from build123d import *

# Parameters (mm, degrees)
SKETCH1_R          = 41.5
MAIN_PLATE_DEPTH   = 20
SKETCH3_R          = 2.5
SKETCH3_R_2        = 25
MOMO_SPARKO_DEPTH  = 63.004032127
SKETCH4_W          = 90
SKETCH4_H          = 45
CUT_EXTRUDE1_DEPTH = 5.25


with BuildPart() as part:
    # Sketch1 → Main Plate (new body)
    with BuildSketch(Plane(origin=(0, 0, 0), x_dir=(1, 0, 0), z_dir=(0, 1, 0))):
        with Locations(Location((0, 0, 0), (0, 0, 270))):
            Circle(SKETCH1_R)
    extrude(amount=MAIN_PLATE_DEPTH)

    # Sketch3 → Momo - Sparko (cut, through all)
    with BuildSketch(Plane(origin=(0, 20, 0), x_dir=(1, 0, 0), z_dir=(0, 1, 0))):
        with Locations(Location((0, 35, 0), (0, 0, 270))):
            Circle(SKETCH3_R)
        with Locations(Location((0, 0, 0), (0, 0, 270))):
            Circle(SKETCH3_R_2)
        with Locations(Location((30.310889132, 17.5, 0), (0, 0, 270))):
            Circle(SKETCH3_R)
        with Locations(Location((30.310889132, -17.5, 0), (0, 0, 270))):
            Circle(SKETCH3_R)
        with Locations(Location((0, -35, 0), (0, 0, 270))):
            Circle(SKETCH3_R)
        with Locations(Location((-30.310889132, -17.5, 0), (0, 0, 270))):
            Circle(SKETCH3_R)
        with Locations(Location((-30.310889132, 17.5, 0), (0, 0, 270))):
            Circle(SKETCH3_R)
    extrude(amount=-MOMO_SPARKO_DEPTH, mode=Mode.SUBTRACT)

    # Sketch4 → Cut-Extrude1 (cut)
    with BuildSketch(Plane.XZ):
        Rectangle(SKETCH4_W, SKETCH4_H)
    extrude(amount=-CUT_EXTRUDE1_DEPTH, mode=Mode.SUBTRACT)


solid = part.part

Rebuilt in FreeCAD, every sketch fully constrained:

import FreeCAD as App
import Part
import Sketcher


def add_polygon(sketch, points):
    """Adds a closed chain of lines whose ends are joined by coincident constraints."""
    first, n = sketch.GeometryCount, len(points)
    for a, b in zip(points, points[1:] + points[:1]):
        sketch.addGeometry(Part.LineSegment(App.Vector(*a, 0), App.Vector(*b, 0)), False)
    for i in range(n):
        sketch.addConstraint(Sketcher.Constraint("Coincident", first + i, 2, first + (i + 1) % n, 1))

doc = App.newDocument("Part")
body = doc.addObject("PartDesign::Body", "Body")

sketch1 = body.newObject("Sketcher::SketchObject", "Sketch")
sketch1.AttachmentSupport = (doc.getObject("XZ_Plane"), [""])
sketch1.MapMode = "FlatFace"
sketch1.addGeometry(Part.Circle(App.Vector(0, 0, 0), App.Vector(0, 0, 1), 42), False)
sketch1.addConstraint([
    Sketcher.Constraint("Coincident", 0, 3, -1, 1),
    Sketcher.Constraint("Diameter", 0, 83.0),
])
pad1 = body.newObject("PartDesign::Pad", "Pad")
pad1.Profile = sketch1
pad1.Length = 20
pad1.Reversed = True

sketch2 = body.newObject("Sketcher::SketchObject", "Sketch001")
sketch2.AttachmentSupport = (doc.getObject("XZ_Plane"), [""])
sketch2.MapMode = "FlatFace"
sketch2.AttachmentOffset = App.Placement(App.Vector(0, 0, -20), App.Rotation())
sketch2.addGeometry([
    Part.Circle(App.Vector(0, -35, 0), App.Vector(0, 0, 1), 2.5),
    Part.Circle(App.Vector(0, 0, 0), App.Vector(0, 0, 1), 25),
    Part.Circle(App.Vector(30.3, -17.5, 0), App.Vector(0, 0, 1), 2.5),
    Part.Circle(App.Vector(30.3, 17.5, 0), App.Vector(0, 0, 1), 2.5),
    Part.Circle(App.Vector(0, 35, 0), App.Vector(0, 0, 1), 2.5),
    Part.Circle(App.Vector(-30.3, 17.5, 0), App.Vector(0, 0, 1), 2.5),
    Part.Circle(App.Vector(-30.3, -17.5, 0), App.Vector(0, 0, 1), 2.5),
], False)
sketch2.addConstraint([
    Sketcher.Constraint("Coincident", 1, 3, -1, 1),
    Sketcher.Constraint("Equal", 0, 2),
    Sketcher.Constraint("Equal", 2, 3),
    Sketcher.Constraint("Equal", 3, 4),
    Sketcher.Constraint("Equal", 4, 5),
    Sketcher.Constraint("Equal", 5, 6),
    Sketcher.Constraint("Symmetric", 0, 3, 4, 3, -1, 1),
    Sketcher.Constraint("Symmetric", 2, 3, 5, 3, -1, 1),
    Sketcher.Constraint("Symmetric", 3, 3, 6, 3, -1, 1),
    Sketcher.Constraint("Symmetric", 3, 3, 5, 3, -2),
    Sketcher.Constraint("PointOnObject", 0, 3, -2),
    Sketcher.Constraint("Diameter", 0, 5.0),
    Sketcher.Constraint("Diameter", 1, 50.0),
    Sketcher.Constraint("DistanceY", 0, 3, -1, 1, 35.0),
    Sketcher.Constraint("DistanceY", 2, 3, 3, 3, 35.0),
    Sketcher.Constraint("DistanceX", -1, 1, 2, 3, 30.310889),
])
pocket1 = body.newObject("PartDesign::Pocket", "Pocket")
pocket1.Profile = sketch2
pocket1.Type = "ThroughAll"
pocket1.Reversed = True

sketch3 = body.newObject("Sketcher::SketchObject", "Sketch002")
sketch3.AttachmentSupport = (doc.getObject("XZ_Plane"), [""])
sketch3.MapMode = "FlatFace"
add_polygon(sketch3, [(-45, 22), (-45, -22), (45, -22), (45, 22)])
sketch3.addConstraint([
    Sketcher.Constraint("Vertical", 0),
    Sketcher.Constraint("Horizontal", 1),
    Sketcher.Constraint("Vertical", 2),
    Sketcher.Constraint("Horizontal", 3),
    Sketcher.Constraint("Symmetric", 0, 2, 2, 2, -1, 1),
    Sketcher.Constraint("DistanceX", 1, 1, 1, 2, 90.0),
    Sketcher.Constraint("DistanceY", 0, 2, 0, 1, 45.0),
])
pocket2 = body.newObject("PartDesign::Pocket", "Pocket001")
pocket2.Profile = sketch3
pocket2.Length = 5.25

doc.recompute()
